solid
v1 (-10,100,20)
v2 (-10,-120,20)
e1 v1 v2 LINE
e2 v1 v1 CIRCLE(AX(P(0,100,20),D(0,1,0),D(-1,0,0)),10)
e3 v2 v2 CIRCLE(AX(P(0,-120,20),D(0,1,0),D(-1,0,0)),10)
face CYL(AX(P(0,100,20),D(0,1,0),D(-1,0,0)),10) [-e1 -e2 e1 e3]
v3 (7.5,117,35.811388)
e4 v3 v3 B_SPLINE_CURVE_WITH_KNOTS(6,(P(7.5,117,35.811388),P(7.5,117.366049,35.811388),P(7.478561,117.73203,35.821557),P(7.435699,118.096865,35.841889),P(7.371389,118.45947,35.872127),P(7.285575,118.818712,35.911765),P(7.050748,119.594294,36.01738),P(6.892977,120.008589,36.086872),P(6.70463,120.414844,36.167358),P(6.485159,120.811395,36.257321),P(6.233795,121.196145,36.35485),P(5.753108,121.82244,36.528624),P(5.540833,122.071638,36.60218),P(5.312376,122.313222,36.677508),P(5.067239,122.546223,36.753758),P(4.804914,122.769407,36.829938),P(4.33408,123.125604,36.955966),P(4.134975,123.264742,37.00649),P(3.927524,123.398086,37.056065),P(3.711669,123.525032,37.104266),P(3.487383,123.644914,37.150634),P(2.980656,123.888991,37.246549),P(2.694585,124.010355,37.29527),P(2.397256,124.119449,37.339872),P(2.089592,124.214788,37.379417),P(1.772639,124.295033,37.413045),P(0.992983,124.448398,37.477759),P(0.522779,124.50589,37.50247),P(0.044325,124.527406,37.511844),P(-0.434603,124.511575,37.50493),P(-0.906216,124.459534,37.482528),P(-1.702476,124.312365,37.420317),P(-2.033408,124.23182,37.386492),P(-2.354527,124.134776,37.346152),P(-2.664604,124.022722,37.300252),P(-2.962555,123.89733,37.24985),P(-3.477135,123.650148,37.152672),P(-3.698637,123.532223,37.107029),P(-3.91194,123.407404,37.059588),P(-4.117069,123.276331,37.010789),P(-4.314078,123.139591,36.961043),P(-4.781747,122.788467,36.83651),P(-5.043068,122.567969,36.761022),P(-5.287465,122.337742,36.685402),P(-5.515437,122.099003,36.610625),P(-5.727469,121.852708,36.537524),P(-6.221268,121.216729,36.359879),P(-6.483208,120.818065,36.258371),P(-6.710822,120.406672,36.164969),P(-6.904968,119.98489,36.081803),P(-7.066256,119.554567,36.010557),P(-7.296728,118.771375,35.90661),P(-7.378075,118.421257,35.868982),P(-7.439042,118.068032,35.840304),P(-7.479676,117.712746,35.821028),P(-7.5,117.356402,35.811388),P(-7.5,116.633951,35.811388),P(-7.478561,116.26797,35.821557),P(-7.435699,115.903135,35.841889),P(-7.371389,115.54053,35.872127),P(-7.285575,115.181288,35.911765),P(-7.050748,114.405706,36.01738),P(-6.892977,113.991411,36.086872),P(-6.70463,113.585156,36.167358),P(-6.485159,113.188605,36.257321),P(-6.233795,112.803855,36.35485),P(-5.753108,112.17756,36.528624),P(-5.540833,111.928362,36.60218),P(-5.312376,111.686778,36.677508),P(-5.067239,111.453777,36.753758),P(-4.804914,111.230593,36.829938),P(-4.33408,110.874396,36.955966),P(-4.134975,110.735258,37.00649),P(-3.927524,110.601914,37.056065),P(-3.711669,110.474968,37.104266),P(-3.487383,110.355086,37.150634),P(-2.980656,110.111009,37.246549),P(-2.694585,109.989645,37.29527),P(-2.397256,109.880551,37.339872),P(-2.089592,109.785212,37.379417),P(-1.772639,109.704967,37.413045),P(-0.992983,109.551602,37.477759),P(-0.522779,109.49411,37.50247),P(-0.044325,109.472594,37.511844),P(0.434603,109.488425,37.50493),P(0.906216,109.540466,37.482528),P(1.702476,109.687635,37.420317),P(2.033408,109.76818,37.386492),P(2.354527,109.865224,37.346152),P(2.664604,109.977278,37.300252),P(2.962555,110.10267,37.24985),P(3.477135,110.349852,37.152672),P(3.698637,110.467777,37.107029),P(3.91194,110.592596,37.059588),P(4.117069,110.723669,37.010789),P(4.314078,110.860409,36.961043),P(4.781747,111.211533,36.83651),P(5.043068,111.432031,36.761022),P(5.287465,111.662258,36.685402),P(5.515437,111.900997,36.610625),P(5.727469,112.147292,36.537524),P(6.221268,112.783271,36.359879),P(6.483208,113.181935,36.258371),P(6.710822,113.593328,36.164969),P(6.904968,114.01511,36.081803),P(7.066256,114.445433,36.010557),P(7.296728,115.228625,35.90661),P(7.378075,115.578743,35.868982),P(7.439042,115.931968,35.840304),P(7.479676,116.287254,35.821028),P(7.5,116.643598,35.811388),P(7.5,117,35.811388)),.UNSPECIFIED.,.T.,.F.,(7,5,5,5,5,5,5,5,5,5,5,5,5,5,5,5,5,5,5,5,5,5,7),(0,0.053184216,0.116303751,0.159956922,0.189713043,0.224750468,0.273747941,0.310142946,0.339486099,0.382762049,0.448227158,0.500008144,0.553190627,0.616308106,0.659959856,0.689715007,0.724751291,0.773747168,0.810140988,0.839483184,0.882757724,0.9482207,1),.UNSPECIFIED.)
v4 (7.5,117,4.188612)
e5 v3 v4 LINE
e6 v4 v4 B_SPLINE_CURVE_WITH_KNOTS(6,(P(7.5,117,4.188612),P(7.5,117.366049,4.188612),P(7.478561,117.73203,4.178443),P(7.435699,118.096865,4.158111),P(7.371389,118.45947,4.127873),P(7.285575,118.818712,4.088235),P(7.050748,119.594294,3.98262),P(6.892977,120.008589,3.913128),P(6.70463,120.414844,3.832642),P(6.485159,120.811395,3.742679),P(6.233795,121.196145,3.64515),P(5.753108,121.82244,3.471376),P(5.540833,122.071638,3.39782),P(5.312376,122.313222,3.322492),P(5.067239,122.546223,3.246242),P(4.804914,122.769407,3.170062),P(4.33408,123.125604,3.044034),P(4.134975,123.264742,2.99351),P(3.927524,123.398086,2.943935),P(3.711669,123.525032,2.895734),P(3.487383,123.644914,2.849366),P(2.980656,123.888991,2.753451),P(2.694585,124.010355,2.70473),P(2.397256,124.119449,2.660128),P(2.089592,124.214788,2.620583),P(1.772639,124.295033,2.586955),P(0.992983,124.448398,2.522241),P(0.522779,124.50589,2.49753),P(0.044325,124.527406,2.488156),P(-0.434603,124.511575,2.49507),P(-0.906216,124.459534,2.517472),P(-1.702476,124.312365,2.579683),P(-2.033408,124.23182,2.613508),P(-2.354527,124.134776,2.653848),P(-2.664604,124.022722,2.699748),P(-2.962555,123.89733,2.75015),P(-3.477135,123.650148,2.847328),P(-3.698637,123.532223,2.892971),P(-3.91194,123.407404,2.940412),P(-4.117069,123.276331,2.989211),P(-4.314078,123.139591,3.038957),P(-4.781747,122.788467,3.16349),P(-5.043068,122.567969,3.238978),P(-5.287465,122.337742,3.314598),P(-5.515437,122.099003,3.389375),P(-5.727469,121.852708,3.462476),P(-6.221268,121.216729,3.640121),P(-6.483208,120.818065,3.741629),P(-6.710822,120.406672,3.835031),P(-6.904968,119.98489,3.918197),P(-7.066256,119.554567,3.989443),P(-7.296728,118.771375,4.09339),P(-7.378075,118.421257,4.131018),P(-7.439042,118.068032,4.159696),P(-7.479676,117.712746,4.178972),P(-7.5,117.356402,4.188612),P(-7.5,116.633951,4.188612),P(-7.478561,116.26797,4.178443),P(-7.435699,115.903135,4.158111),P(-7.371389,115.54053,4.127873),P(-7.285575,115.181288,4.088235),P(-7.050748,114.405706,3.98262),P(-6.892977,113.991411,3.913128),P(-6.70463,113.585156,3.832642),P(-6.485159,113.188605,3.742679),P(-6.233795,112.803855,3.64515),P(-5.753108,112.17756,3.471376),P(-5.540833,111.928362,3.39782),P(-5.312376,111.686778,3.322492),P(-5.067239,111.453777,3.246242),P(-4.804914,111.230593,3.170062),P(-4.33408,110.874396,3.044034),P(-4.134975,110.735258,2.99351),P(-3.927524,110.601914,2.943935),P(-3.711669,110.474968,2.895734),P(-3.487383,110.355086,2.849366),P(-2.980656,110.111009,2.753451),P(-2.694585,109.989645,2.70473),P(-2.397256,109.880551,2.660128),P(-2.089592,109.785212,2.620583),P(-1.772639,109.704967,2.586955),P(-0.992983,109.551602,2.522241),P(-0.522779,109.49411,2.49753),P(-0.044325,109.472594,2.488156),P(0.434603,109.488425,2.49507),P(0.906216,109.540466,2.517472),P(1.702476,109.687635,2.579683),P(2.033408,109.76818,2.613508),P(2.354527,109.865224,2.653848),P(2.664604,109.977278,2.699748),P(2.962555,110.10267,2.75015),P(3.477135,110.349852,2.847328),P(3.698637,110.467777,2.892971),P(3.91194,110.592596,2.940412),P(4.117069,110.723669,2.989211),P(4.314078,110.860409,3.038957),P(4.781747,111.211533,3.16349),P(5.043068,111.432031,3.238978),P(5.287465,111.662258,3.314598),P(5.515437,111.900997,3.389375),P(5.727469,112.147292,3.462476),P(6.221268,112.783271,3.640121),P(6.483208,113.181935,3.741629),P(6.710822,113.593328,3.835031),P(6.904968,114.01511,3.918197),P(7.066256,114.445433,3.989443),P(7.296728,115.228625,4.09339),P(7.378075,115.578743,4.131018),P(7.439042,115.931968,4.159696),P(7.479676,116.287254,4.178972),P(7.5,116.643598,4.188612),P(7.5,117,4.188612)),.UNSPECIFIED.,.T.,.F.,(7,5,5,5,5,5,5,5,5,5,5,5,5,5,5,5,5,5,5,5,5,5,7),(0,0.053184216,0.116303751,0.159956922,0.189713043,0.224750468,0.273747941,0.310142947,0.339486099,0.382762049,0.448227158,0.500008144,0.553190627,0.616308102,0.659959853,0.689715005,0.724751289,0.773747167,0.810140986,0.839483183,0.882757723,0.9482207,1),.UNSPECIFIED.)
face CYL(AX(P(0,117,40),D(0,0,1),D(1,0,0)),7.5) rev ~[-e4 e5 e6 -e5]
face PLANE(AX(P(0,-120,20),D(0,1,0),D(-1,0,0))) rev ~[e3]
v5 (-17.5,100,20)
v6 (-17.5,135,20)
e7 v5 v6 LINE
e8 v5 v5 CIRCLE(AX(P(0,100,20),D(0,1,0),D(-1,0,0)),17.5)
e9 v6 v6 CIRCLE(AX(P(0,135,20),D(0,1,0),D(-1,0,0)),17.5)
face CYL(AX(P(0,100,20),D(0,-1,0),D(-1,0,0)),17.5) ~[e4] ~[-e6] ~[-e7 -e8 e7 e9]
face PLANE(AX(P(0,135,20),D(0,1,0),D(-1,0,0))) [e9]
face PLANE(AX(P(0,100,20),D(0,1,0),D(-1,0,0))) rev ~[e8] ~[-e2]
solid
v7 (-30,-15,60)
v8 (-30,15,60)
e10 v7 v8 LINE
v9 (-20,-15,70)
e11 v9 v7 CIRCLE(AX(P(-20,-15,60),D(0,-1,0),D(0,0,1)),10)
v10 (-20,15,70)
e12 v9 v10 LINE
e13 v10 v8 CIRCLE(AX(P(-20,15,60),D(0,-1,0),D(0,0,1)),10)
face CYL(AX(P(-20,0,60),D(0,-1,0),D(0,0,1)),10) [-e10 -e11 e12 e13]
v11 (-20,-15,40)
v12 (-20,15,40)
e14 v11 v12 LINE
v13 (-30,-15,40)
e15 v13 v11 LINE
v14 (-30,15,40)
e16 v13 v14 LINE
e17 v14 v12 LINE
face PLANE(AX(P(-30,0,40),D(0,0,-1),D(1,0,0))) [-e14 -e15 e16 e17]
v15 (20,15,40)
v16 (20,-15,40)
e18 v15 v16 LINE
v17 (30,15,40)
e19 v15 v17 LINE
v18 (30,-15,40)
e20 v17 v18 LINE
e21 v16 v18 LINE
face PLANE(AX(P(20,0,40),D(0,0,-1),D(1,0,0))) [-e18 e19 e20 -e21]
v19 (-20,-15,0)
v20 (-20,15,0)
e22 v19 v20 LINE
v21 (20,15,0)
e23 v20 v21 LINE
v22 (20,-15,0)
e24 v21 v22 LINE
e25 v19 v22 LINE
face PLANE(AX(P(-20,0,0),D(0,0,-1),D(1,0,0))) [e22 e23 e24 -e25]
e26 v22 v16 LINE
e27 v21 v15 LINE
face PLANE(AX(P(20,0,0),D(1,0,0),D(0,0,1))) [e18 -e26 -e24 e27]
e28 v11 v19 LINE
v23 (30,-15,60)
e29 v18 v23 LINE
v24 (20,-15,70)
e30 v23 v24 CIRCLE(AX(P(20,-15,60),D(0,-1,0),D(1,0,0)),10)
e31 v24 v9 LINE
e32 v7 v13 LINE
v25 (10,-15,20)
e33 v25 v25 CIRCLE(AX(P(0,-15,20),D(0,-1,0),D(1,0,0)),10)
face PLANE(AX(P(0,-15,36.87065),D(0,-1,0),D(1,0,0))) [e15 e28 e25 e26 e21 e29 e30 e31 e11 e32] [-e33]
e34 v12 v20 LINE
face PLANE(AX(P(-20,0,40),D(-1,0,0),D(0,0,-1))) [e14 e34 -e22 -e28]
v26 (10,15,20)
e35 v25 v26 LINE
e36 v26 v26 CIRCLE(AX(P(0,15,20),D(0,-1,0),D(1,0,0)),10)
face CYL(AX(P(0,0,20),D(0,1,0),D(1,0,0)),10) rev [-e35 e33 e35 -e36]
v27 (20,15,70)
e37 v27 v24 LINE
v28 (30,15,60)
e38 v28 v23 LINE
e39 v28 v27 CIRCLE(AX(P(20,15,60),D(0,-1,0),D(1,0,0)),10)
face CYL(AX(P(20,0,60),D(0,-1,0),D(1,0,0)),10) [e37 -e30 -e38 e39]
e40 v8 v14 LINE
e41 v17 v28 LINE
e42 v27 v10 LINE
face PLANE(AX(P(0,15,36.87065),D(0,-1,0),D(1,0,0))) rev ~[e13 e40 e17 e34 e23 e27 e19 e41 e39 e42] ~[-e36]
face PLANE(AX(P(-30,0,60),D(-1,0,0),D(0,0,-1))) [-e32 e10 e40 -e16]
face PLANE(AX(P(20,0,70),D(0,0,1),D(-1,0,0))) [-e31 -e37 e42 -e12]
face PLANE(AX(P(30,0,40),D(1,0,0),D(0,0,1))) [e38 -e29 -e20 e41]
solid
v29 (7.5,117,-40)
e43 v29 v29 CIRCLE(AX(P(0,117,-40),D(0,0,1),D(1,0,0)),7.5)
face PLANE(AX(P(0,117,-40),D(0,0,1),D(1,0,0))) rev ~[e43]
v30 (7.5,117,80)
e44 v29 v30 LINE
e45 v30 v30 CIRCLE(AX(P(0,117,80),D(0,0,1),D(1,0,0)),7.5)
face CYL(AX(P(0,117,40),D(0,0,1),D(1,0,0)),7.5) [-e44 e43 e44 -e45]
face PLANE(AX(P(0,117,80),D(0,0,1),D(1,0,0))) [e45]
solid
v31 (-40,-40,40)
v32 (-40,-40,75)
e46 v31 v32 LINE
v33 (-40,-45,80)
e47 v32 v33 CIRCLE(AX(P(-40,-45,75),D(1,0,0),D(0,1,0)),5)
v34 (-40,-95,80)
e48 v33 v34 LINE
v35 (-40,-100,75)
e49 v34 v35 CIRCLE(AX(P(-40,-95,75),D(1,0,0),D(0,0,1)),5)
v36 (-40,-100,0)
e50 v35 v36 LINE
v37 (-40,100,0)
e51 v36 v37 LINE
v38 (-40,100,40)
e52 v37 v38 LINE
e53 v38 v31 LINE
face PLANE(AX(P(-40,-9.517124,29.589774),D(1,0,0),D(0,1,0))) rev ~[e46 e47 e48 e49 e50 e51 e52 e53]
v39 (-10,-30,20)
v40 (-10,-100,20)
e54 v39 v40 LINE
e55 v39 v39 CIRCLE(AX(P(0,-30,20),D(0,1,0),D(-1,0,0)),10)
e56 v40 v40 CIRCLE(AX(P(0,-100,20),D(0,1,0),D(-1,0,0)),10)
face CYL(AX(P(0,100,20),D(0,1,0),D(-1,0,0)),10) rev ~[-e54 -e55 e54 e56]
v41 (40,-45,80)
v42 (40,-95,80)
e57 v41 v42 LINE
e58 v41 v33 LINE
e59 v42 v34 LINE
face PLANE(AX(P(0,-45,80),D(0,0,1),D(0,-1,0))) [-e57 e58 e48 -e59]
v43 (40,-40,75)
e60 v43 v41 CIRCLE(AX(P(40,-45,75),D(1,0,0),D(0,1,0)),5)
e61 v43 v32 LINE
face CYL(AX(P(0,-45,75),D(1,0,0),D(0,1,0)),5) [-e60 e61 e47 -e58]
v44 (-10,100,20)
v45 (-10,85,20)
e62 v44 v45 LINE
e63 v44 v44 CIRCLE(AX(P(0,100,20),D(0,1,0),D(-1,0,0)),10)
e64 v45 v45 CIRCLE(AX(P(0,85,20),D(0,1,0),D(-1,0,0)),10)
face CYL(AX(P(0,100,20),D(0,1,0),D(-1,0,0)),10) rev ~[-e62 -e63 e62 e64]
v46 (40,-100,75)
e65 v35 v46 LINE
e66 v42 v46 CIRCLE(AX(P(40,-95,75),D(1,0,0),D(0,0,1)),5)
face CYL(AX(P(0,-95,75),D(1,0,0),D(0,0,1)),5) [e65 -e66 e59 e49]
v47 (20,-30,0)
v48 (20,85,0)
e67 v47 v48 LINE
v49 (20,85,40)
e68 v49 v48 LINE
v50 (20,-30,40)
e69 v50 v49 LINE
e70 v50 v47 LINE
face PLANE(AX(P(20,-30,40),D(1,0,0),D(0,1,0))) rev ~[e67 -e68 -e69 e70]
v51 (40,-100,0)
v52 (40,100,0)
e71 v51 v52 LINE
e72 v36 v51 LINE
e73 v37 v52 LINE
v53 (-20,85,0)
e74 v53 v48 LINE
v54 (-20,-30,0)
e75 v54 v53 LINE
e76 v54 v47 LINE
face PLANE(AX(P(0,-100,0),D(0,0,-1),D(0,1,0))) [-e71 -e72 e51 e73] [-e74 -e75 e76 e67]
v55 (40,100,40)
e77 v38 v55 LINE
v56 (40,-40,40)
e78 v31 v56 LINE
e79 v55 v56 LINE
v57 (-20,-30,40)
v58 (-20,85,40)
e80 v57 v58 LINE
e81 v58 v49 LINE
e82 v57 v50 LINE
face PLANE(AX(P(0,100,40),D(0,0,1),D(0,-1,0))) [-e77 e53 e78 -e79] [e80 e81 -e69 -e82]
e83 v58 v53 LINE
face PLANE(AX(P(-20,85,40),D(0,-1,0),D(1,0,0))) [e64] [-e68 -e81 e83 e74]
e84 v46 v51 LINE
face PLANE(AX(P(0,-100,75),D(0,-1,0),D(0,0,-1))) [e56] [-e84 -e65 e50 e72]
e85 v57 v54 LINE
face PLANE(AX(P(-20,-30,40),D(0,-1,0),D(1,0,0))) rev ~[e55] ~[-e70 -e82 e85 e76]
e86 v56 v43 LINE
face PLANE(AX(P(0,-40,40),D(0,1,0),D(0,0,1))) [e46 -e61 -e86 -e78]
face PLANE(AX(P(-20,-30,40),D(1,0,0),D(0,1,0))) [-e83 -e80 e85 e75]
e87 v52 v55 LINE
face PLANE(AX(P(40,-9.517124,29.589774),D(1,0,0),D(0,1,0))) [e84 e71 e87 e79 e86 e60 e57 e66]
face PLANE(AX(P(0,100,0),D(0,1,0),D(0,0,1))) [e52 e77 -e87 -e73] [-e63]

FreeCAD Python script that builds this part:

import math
import FreeCAD as App
import Part
import Sketcher
Q = App.Units.Quantity

doc = App.newDocument("Part")
body = doc.addObject("PartDesign::Body", "Body")

# Sketch on YZ plane
sketch1 = body.newObject("Sketcher::SketchObject", "Sketch")
sketch1.AttachmentSupport = (doc.getObject("YZ_Plane"), [""])
sketch1.MapMode = "FlatFace"
sketch1.addGeometry([
    Part.ArcOfCircle(Part.Circle(App.Vector(-95, 75, 0), App.Vector(0, 0, 1), 5), math.radians(90), math.radians(180)),  # 0
    Part.LineSegment(App.Vector(-100, 75, 0), App.Vector(-100, 0, 0)),  # 1
    Part.LineSegment(App.Vector(-100, 0, 0), App.Vector(100, 0, 0)),  # 2
    Part.LineSegment(App.Vector(100, 0, 0), App.Vector(100, 40, 0)),  # 3
    Part.LineSegment(App.Vector(100, 40, 0), App.Vector(-40, 40, 0)),  # 4
    Part.LineSegment(App.Vector(-40, 40, 0), App.Vector(-40, 75, 0)),  # 5
    Part.ArcOfCircle(Part.Circle(App.Vector(-45, 75, 0), App.Vector(0, 0, 1), 5), math.radians(0), math.radians(90)),  # 6
    Part.LineSegment(App.Vector(-45, 80, 0), App.Vector(-95, 80, 0)),  # 7
], False)
sketch1.addConstraint([
    Sketcher.Constraint("Tangent", 0, 2, 1, 1),
    Sketcher.Constraint("Coincident", 1, 2, 2, 1),
    Sketcher.Constraint("Coincident", 2, 2, 3, 1),
    Sketcher.Constraint("Coincident", 3, 2, 4, 1),
    Sketcher.Constraint("Coincident", 4, 2, 5, 1),
    Sketcher.Constraint("Tangent", 5, 2, 6, 1),
    Sketcher.Constraint("Tangent", 6, 2, 7, 1),
    Sketcher.Constraint("Tangent", 7, 2, 0, 1),
    Sketcher.Constraint("Vertical", 1),
    Sketcher.Constraint("Horizontal", 2),
    Sketcher.Constraint("Vertical", 3),
    Sketcher.Constraint("Horizontal", 4),
    Sketcher.Constraint("Vertical", 5),
    Sketcher.Constraint("Horizontal", 7),
    Sketcher.Constraint("Equal", 0, 6),
    Sketcher.Constraint("Symmetric", 1, 2, 2, 2, -1, 1),
    Sketcher.Constraint("Radius", 0, Q("5 mm")),
    Sketcher.Constraint("DistanceX", 2, 1, 2, 2, Q("200 mm")),
    Sketcher.Constraint("DistanceX", 4, 2, 4, 1, Q("140 mm")),
    Sketcher.Constraint("DistanceY", 1, 2, 1, 1, Q("75 mm")),
    Sketcher.Constraint("DistanceY", 3, 1, 3, 2, Q("40 mm")),
])
pad1 = body.newObject("PartDesign::Pad", "Pad")
pad1.Profile = sketch1
pad1.Length = 80
pad1.Midplane = True

# Sketch on XY plane
sketch2 = body.newObject("Sketcher::SketchObject", "Sketch001")
sketch2.AttachmentSupport = (doc.getObject("XY_Plane"), [""])
sketch2.MapMode = "FlatFace"
sketch2.AttachmentOffset = App.Placement(App.Vector(0, 0, 40), App.Rotation())
sketch2.addGeometry([
    Part.LineSegment(App.Vector(-20, 85, 0), App.Vector(-20, -30, 0)),
    Part.LineSegment(App.Vector(-20, -30, 0), App.Vector(20, -30, 0)),
    Part.LineSegment(App.Vector(20, -30, 0), App.Vector(20, 85, 0)),
    Part.LineSegment(App.Vector(20, 85, 0), App.Vector(-20, 85, 0)),
], False)
sketch2.addConstraint([
    Sketcher.Constraint("Coincident", 0, 2, 1, 1),
    Sketcher.Constraint("Coincident", 1, 2, 2, 1),
    Sketcher.Constraint("Coincident", 2, 2, 3, 1),
    Sketcher.Constraint("Coincident", 3, 2, 0, 1),
    Sketcher.Constraint("Vertical", 0),
    Sketcher.Constraint("Horizontal", 1),
    Sketcher.Constraint("Vertical", 2),
    Sketcher.Constraint("Horizontal", 3),
    Sketcher.Constraint("DistanceX", 1, 1, 1, 2, Q("40 mm")),
    Sketcher.Constraint("DistanceY", 0, 2, 0, 1, Q("115 mm")),
    Sketcher.Constraint("DistanceX", 0, 2, -1, 1, Q("20 mm")),
    Sketcher.Constraint("DistanceY", 0, 2, -1, 1, Q("30 mm")),
])
pocket1 = body.newObject("PartDesign::Pocket", "Pocket")
pocket1.Profile = sketch2
pocket1.Type = "ThroughAll"

# Sketch on XZ plane
sketch3 = body.newObject("Sketcher::SketchObject", "Sketch002")
sketch3.AttachmentSupport = (doc.getObject("XZ_Plane"), [""])
sketch3.MapMode = "FlatFace"
sketch3.AttachmentOffset = App.Placement(App.Vector(0, 0, -100), App.Rotation())
sketch3.addGeometry(Part.Circle(App.Vector(0, 20, 0), App.Vector(0, 0, 1), 10), False)
sketch3.addConstraint([
    Sketcher.Constraint("PointOnObject", 0, 3, -2),
    Sketcher.Constraint("Diameter", 0, Q("20 mm")),
    Sketcher.Constraint("DistanceY", -1, 1, 0, 3, Q("20 mm")),
])
pocket2 = body.newObject("PartDesign::Pocket", "Pocket001")
pocket2.Profile = sketch3
pocket2.Type = "ThroughAll"
pocket2.Reversed = True
body2 = doc.addObject("PartDesign::Body", "Body001")

# Sketch on XZ plane
sketch4 = body2.newObject("Sketcher::SketchObject", "Sketch003")
sketch4.AttachmentSupport = (doc.getObject("XZ_Plane001"), [""])
sketch4.MapMode = "FlatFace"
sketch4.addGeometry([
    Part.LineSegment(App.Vector(-20, 0, 0), App.Vector(20, 0, 0)),  # 0
    Part.LineSegment(App.Vector(20, 0, 0), App.Vector(20, 40, 0)),  # 1
    Part.LineSegment(App.Vector(20, 40, 0), App.Vector(30, 40, 0)),  # 2
    Part.LineSegment(App.Vector(30, 40, 0), App.Vector(30, 60, 0)),  # 3
    Part.ArcOfCircle(Part.Circle(App.Vector(20, 60, 0), App.Vector(0, 0, 1), 10), math.radians(0), math.radians(90)),  # 4
    Part.LineSegment(App.Vector(20, 70, 0), App.Vector(-20, 70, 0)),  # 5
    Part.ArcOfCircle(Part.Circle(App.Vector(-20, 60, 0), App.Vector(0, 0, 1), 10), math.radians(90), math.radians(180)),  # 6
    Part.LineSegment(App.Vector(-30, 60, 0), App.Vector(-30, 40, 0)),  # 7
    Part.LineSegment(App.Vector(-30, 40, 0), App.Vector(-20, 40, 0)),  # 8
    Part.LineSegment(App.Vector(-20, 40, 0), App.Vector(-20, 0, 0)),  # 9
    Part.Circle(App.Vector(0, 20, 0), App.Vector(0, 0, 1), 10),  # 10
], False)
sketch4.addConstraint([
    Sketcher.Constraint("Coincident", 0, 2, 1, 1),
    Sketcher.Constraint("Coincident", 1, 2, 2, 1),
    Sketcher.Constraint("Coincident", 2, 2, 3, 1),
    Sketcher.Constraint("Tangent", 3, 2, 4, 1),
    Sketcher.Constraint("Tangent", 4, 2, 5, 1),
    Sketcher.Constraint("Tangent", 5, 2, 6, 1),
    Sketcher.Constraint("Tangent", 6, 2, 7, 1),
    Sketcher.Constraint("Coincident", 7, 2, 8, 1),
    Sketcher.Constraint("Coincident", 8, 2, 9, 1),
    Sketcher.Constraint("Coincident", 9, 2, 0, 1),
    Sketcher.Constraint("Horizontal", 0),
    Sketcher.Constraint("Vertical", 1),
    Sketcher.Constraint("Horizontal", 2),
    Sketcher.Constraint("Vertical", 3),
    Sketcher.Constraint("Horizontal", 5),
    Sketcher.Constraint("Vertical", 7),
    Sketcher.Constraint("Horizontal", 8),
    Sketcher.Constraint("Vertical", 9),
    Sketcher.Constraint("Equal", 4, 6),
    Sketcher.Constraint("Equal", 6, 10),
    Sketcher.Constraint("Symmetric", 0, 2, 9, 2, -1, 1),
    Sketcher.Constraint("Symmetric", 2, 2, 7, 2, -2),
    Sketcher.Constraint("PointOnObject", 10, 3, -2),
    Sketcher.Constraint("Vertical", 4, 3, 0, 2),
    Sketcher.Constraint("Equal", 5, 1),
    Sketcher.Constraint("Diameter", 10, Q("20 mm")),
    Sketcher.Constraint("DistanceX", 0, 1, 0, 2, Q("40 mm")),
    Sketcher.Constraint("DistanceY", 3, 1, 3, 2, Q("20 mm")),
    Sketcher.Constraint("DistanceY", -1, 1, 10, 3, Q("20 mm")),
])
pad2 = body2.newObject("PartDesign::Pad", "Pad001")
pad2.Profile = sketch4
pad2.Length = 30
pad2.Midplane = True
body3 = doc.addObject("PartDesign::Body", "Body002")

# Sketch on XZ plane
sketch5 = body3.newObject("Sketcher::SketchObject", "Sketch004")
sketch5.AttachmentSupport = (doc.getObject("XZ_Plane002"), [""])
sketch5.MapMode = "FlatFace"
sketch5.AttachmentOffset = App.Placement(App.Vector(0, 0, -100), App.Rotation())
sketch5.addGeometry(Part.Circle(App.Vector(0, 20, 0), App.Vector(0, 0, 1), 18), False)
sketch5.addConstraint([
    Sketcher.Constraint("PointOnObject", 0, 3, -2),
    Sketcher.Constraint("Diameter", 0, Q("35 mm")),
    Sketcher.Constraint("DistanceY", -1, 1, 0, 3, Q("20 mm")),
])
pad3 = body3.newObject("PartDesign::Pad", "Pad002")
pad3.Profile = sketch5
pad3.Length = 35
pad3.Reversed = True

# Sketch on XZ plane
sketch6 = body3.newObject("Sketcher::SketchObject", "Sketch005")
sketch6.AttachmentSupport = (doc.getObject("XZ_Plane002"), [""])
sketch6.MapMode = "FlatFace"
sketch6.AttachmentOffset = App.Placement(App.Vector(0, 0, -100), App.Rotation())
sketch6.addGeometry(Part.Circle(App.Vector(0, 20, 0), App.Vector(0, 0, 1), 10), False)
sketch6.addConstraint([
    Sketcher.Constraint("PointOnObject", 0, 3, -2),
    Sketcher.Constraint("Diameter", 0, Q("20 mm")),
    Sketcher.Constraint("DistanceY", -1, 1, 0, 3, Q("20 mm")),
])
pad4 = body3.newObject("PartDesign::Pad", "Pad003")
pad4.Profile = sketch6
pad4.Length = 220

# Sketch on XY plane
sketch7 = body3.newObject("Sketcher::SketchObject", "Sketch006")
sketch7.AttachmentSupport = (doc.getObject("XY_Plane002"), [""])
sketch7.MapMode = "FlatFace"
sketch7.AttachmentOffset = App.Placement(App.Vector(0, 0, 40), App.Rotation())
sketch7.addGeometry(Part.Circle(App.Vector(0, 117, 0), App.Vector(0, 0, 1), 8), False)
sketch7.addConstraint([
    Sketcher.Constraint("PointOnObject", 0, 3, -2),
    Sketcher.Constraint("Diameter", 0, Q("15 mm")),
    Sketcher.Constraint("DistanceY", -1, 1, 0, 3, Q("117 mm")),
])
pocket3 = body3.newObject("PartDesign::Pocket", "Pocket002")
pocket3.Profile = sketch7
pocket3.Type = "ThroughAll"
body4 = doc.addObject("PartDesign::Body", "Body003")

# Sketch on XY plane
sketch8 = body4.newObject("Sketcher::SketchObject", "Sketch007")
sketch8.AttachmentSupport = (doc.getObject("XY_Plane003"), [""])
sketch8.MapMode = "FlatFace"
sketch8.AttachmentOffset = App.Placement(App.Vector(0, 0, 40), App.Rotation())
sketch8.addGeometry(Part.Circle(App.Vector(0, 117, 0), App.Vector(0, 0, 1), 8), False)
sketch8.addConstraint([
    Sketcher.Constraint("PointOnObject", 0, 3, -2),
    Sketcher.Constraint("Diameter", 0, Q("15 mm")),
    Sketcher.Constraint("DistanceY", -1, 1, 0, 3, Q("117 mm")),
])
pad5 = body4.newObject("PartDesign::Pad", "Pad004")
pad5.Profile = sketch8
pad5.Type = "TwoLengths"
pad5.Length = 40
pad5.Length2 = 80

doc.recompute()
